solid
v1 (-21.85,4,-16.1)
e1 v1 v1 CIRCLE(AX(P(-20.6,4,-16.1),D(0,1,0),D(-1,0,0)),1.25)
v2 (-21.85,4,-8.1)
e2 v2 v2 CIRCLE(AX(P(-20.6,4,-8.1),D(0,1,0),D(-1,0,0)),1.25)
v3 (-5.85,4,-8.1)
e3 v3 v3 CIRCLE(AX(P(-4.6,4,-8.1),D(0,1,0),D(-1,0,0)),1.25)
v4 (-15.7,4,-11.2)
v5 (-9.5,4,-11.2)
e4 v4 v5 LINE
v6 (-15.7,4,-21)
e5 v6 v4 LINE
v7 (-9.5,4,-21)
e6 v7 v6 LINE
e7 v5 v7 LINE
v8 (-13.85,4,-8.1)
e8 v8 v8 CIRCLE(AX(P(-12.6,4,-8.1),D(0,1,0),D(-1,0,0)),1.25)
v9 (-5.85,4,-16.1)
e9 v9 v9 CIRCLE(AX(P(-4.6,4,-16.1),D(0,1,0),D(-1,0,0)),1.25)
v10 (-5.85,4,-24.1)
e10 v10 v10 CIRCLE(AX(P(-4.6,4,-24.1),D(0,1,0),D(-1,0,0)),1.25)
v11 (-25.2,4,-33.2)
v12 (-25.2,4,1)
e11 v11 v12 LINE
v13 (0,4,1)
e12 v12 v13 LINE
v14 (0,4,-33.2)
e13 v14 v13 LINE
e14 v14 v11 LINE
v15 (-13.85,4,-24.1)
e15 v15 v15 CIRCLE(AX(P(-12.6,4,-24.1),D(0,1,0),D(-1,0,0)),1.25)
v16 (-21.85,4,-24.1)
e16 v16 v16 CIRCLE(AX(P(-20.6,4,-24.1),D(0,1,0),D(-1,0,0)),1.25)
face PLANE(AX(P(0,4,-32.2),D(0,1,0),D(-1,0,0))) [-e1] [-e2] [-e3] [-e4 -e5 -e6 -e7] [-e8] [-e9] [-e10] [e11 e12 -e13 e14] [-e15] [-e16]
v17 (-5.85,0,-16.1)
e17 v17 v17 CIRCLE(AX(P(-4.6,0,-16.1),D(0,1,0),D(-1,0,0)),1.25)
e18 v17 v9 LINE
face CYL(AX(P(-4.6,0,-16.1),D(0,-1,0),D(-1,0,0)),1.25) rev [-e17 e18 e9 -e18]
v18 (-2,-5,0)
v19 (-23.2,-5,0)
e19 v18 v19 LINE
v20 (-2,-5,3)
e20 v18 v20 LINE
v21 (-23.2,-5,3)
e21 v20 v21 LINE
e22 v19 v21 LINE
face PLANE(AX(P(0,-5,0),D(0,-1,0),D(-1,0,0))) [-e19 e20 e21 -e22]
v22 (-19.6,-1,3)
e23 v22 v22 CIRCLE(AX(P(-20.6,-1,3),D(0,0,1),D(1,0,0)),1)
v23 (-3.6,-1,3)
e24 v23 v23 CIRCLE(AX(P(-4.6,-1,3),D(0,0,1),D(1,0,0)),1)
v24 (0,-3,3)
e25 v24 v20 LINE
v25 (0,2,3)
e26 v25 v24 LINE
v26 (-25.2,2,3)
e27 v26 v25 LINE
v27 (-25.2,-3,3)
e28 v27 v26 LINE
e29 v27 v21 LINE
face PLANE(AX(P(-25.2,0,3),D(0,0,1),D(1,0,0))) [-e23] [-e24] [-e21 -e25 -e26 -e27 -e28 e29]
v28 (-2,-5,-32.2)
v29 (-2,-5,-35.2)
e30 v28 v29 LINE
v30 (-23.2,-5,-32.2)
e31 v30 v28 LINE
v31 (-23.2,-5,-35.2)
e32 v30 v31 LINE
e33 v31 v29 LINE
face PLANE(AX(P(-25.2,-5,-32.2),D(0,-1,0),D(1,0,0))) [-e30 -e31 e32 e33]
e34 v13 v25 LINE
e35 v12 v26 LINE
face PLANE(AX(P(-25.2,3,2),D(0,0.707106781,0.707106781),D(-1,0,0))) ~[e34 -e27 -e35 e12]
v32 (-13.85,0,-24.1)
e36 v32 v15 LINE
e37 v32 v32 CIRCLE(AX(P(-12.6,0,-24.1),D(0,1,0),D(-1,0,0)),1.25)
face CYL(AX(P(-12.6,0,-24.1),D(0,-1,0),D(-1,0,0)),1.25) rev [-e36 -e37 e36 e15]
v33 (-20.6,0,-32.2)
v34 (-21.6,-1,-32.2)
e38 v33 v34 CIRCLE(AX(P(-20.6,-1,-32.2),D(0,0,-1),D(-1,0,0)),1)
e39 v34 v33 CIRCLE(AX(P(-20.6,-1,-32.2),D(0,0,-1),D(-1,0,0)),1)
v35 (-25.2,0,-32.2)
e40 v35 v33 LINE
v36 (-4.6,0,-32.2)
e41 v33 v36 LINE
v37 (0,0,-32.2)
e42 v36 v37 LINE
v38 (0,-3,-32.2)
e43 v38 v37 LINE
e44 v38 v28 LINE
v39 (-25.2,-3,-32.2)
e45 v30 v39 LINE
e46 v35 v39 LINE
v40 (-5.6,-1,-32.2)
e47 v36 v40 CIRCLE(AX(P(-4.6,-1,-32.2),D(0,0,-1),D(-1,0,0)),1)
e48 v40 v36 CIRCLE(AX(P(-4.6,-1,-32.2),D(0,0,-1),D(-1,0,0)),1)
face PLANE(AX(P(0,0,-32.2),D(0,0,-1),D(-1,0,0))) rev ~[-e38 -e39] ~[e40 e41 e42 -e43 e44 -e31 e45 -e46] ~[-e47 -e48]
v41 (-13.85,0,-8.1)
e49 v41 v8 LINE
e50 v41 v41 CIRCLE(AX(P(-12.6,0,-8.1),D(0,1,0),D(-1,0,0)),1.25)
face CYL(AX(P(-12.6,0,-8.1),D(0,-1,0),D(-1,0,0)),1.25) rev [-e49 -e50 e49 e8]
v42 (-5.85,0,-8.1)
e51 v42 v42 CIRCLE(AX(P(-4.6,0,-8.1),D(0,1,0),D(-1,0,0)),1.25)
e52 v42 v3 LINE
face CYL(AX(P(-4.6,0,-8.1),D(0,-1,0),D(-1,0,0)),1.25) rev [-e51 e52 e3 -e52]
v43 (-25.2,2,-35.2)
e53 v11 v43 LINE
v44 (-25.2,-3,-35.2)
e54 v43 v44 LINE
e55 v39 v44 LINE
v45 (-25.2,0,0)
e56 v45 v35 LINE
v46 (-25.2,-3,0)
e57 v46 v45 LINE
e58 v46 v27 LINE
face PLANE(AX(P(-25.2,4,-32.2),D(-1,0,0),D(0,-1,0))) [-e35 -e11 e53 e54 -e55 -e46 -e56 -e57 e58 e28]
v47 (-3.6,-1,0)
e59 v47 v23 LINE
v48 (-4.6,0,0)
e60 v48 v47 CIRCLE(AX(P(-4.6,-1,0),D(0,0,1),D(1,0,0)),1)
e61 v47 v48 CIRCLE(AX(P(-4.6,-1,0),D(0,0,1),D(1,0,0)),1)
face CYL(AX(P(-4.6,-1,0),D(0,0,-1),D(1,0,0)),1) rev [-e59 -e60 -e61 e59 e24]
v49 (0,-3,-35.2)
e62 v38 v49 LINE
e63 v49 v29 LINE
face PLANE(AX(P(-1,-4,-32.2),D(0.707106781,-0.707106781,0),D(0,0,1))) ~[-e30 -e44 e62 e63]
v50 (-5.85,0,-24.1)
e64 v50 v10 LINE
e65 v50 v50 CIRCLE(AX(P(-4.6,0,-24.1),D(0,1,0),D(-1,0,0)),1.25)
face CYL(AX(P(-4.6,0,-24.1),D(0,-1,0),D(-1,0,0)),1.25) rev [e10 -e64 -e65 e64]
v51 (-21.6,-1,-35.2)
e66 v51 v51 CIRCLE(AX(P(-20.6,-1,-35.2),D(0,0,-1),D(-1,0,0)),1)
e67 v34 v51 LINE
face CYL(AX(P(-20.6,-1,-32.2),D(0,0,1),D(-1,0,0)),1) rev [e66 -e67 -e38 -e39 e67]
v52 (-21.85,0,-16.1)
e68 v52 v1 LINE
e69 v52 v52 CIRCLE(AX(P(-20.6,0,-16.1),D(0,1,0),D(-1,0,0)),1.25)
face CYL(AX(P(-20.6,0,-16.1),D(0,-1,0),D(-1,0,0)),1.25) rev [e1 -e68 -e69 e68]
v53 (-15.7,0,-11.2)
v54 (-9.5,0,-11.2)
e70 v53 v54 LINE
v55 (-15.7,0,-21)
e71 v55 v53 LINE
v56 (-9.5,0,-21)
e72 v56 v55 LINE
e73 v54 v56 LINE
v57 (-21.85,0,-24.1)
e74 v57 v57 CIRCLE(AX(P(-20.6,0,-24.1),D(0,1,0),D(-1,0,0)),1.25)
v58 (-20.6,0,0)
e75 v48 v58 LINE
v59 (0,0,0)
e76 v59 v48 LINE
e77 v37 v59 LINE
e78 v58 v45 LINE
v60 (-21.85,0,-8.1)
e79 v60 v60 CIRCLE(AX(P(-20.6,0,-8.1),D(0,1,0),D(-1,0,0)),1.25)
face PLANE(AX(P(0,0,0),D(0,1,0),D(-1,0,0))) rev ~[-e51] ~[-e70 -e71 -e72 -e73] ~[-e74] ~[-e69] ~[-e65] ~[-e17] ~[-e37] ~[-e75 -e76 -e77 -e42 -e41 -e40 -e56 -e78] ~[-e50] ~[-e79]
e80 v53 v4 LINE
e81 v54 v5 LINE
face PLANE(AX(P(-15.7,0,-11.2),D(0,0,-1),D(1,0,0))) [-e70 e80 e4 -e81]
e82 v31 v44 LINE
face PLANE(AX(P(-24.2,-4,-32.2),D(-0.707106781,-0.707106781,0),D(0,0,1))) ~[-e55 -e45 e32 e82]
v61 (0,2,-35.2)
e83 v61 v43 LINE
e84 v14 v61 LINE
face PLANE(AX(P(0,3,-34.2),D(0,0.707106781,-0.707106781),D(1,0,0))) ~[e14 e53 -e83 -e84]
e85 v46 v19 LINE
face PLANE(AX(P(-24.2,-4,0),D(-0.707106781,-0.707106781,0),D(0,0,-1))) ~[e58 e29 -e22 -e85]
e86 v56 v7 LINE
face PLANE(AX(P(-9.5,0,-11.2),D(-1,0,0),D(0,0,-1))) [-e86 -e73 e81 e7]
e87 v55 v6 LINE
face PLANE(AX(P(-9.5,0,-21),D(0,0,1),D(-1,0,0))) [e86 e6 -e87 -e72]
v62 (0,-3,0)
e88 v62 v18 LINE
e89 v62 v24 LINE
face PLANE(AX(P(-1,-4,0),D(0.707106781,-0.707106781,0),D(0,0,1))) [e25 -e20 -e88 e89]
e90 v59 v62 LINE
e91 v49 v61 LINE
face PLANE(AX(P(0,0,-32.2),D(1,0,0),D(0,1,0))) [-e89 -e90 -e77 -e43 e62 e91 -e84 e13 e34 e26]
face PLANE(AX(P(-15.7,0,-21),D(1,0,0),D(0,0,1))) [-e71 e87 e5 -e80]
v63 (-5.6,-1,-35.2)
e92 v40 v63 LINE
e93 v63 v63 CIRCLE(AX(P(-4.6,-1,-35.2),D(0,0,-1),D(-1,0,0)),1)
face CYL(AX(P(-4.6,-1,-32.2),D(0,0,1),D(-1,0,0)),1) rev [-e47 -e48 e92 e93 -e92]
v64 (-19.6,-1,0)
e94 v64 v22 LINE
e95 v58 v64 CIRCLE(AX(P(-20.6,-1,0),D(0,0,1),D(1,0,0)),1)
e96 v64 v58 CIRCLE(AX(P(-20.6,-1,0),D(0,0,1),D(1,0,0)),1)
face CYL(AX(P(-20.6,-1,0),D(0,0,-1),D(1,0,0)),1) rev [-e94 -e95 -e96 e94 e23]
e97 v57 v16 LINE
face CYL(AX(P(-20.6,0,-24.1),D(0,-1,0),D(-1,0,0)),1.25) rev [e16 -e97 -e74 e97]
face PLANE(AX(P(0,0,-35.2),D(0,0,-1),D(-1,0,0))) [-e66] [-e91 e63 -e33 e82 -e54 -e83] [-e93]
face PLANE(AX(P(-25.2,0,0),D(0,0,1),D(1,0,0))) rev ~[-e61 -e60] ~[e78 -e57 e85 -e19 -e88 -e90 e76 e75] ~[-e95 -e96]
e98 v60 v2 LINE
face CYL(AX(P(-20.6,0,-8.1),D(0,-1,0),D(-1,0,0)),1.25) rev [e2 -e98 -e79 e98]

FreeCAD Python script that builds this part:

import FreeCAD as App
import Part
import Sketcher
from FreeCAD import Vector


def edges_at(feature, points):
    """Names of the edges that pass closest to the given points."""
    edges = feature.Shape.Edges
    near = lambda p: min(range(len(edges)), key=lambda i: edges[i].distToShape(Part.Vertex(*p))[0])
    return sorted({f"Edge{near(p) + 1}" for p in points})


def add_polygon(sketch, points):
    """Adds a closed chain of lines whose ends are joined by coincident constraints."""
    first, n = sketch.GeometryCount, len(points)
    for a, b in zip(points, points[1:] + points[:1]):
        sketch.addGeometry(Part.LineSegment(App.Vector(*a, 0), App.Vector(*b, 0)), False)
    for i in range(n):
        sketch.addConstraint(Sketcher.Constraint("Coincident", first + i, 2, first + (i + 1) % n, 1))

doc = App.newDocument("Part")
body = doc.addObject("PartDesign::Body", "Body")

# Sketch on XZ plane
sketch1 = doc.addObject("Sketcher::SketchObject", "Sketch")
body.addObject(sketch1)
sketch1.AttachmentSupport = (doc.XZ_Plane, [""])
sketch1.MapMode = "FlatFace"
add_polygon(sketch1, [(-25.2, 0), (0, 0), (0, -32.2), (-25.2, -32.2)])  # lines 0-3
sketch1.addGeometry(Part.Circle(Vector(-4.6, -24.1, 0), Vector(0, 0, 1), 1.2), False)  # 4
sketch1.addGeometry(Part.Circle(Vector(-12.6, -24.1, 0), Vector(0, 0, 1), 1.2), False)  # 5
sketch1.addGeometry(Part.Circle(Vector(-20.6, -24.1, 0), Vector(0, 0, 1), 1.2), False)  # 6
sketch1.addGeometry(Part.Circle(Vector(-4.6, -16.1, 0), Vector(0, 0, 1), 1.2), False)  # 7
sketch1.addGeometry(Part.Circle(Vector(-4.6, -8.1, 0), Vector(0, 0, 1), 1.2), False)  # 8
add_polygon(sketch1, [(-9.5, -11.2), (-15.7, -11.2), (-15.7, -21), (-9.5, -21)])  # lines 9-12
sketch1.addGeometry(Part.Circle(Vector(-12.6, -8.1, 0), Vector(0, 0, 1), 1.2), False)  # 13
sketch1.addGeometry(Part.Circle(Vector(-20.6, -16.1, 0), Vector(0, 0, 1), 1.2), False)  # 14
sketch1.addGeometry(Part.Circle(Vector(-20.6, -8.1, 0), Vector(0, 0, 1), 1.2), False)  # 15
sketch1.addConstraint([
    Sketcher.Constraint("Horizontal", 0),
    Sketcher.Constraint("Vertical", 1),
    Sketcher.Constraint("Horizontal", 2),
    Sketcher.Constraint("Vertical", 3),
    Sketcher.Constraint("Horizontal", 9),
    Sketcher.Constraint("Vertical", 10),
    Sketcher.Constraint("Horizontal", 11),
    Sketcher.Constraint("Vertical", 12),
    Sketcher.Constraint("Coincident", 0, 2, -1, 1),
    Sketcher.Constraint("Equal", 4, 5),
    Sketcher.Constraint("Equal", 5, 6),
    Sketcher.Constraint("Equal", 6, 7),
    Sketcher.Constraint("Equal", 7, 8),
    Sketcher.Constraint("Equal", 8, 13),
    Sketcher.Constraint("Equal", 13, 14),
    Sketcher.Constraint("Equal", 14, 15),
    Sketcher.Constraint("Horizontal", 4, 3, 5, 3),
    Sketcher.Constraint("Horizontal", 5, 3, 6, 3),
    Sketcher.Constraint("Horizontal", 8, 3, 13, 3),
    Sketcher.Constraint("Horizontal", 7, 3, 14, 3),
    Sketcher.Constraint("Horizontal", 13, 3, 15, 3),
    Sketcher.Constraint("Vertical", 4, 3, 7, 3),
    Sketcher.Constraint("Vertical", 7, 3, 8, 3),
    Sketcher.Constraint("Vertical", 5, 3, 13, 3),
    Sketcher.Constraint("Vertical", 6, 3, 14, 3),
    Sketcher.Constraint("Vertical", 14, 3, 15, 3),
    Sketcher.Constraint("Diameter", 4, 2.5),
    Sketcher.Constraint("DistanceX", 0, 1, 0, 2, 25.2),
    Sketcher.Constraint("DistanceY", 1, 2, 1, 1, 32.2),
    Sketcher.Constraint("DistanceX", 5, 3, 4, 3, 8.0),
    Sketcher.Constraint("DistanceX", 6, 3, 5, 3, 8.0),
    Sketcher.Constraint("DistanceY", 4, 3, 7, 3, 8.0),
    Sketcher.Constraint("DistanceY", 7, 3, 8, 3, 8.0),
    Sketcher.Constraint("DistanceX", 4, 3, -1, 1, 4.6),
    Sketcher.Constraint("DistanceY", 7, 3, -1, 1, 16.1),
    Sketcher.Constraint("DistanceY", 9, 2, -1, 1, 11.2),
    Sketcher.Constraint("DistanceX", 11, 2, -1, 1, 9.5),
    Sketcher.Constraint("DistanceX", 9, 2, 9, 1, 6.2),
    Sketcher.Constraint("DistanceY", 10, 2, 10, 1, 9.8),
])
pad1 = doc.addObject("PartDesign::Pad", "Pad")
body.addObject(pad1)
pad1.Profile = sketch1
pad1.Length = 4
pad1.Reversed = True

# Sketch on XY plane
sketch2 = doc.addObject("Sketcher::SketchObject", "Sketch001")
body.addObject(sketch2)
sketch2.AttachmentSupport = (doc.XY_Plane, [""])
sketch2.MapMode = "FlatFace"
add_polygon(sketch2, [(-25.2, 4), (-25.2, -5), (0, -5), (0, 4)])  # lines 0-3
sketch2.addGeometry(Part.Circle(Vector(-20.6, -1, 0), Vector(0, 0, 1), 1), False)  # 4
sketch2.addGeometry(Part.Circle(Vector(-4.6, -1, 0), Vector(0, 0, 1), 1), False)  # 5
sketch2.addConstraint([
    Sketcher.Constraint("Vertical", 0),
    Sketcher.Constraint("Horizontal", 1),
    Sketcher.Constraint("Vertical", 2),
    Sketcher.Constraint("Horizontal", 3),
    Sketcher.Constraint("Equal", 4, 5),
    Sketcher.Constraint("PointOnObject", 1, 2, -2),
    Sketcher.Constraint("Horizontal", 4, 3, 5, 3),
    Sketcher.Constraint("Diameter", 4, 2.0),
    Sketcher.Constraint("DistanceY", 0, 2, 0, 1, 9.0),
    Sketcher.Constraint("DistanceX", 1, 1, 1, 2, 25.2),
    Sketcher.Constraint("DistanceY", 0, 2, -1, 1, 5.0),
    Sketcher.Constraint("DistanceY", 5, 3, 2, 2, 5.0),
    Sketcher.Constraint("DistanceX", 5, 3, -1, 1, 4.6),
    Sketcher.Constraint("DistanceX", 0, 2, 4, 3, 4.6),
])
pad2 = doc.addObject("PartDesign::Pad", "Pad001")
body.addObject(pad2)
pad2.Profile = sketch2
pad2.Length = 3

# Sketch on XY plane
sketch3 = doc.addObject("Sketcher::SketchObject", "Sketch002")
body.addObject(sketch3)
sketch3.AttachmentSupport = (doc.XY_Plane, [""])
sketch3.MapMode = "FlatFace"
sketch3.AttachmentOffset = App.Placement(Vector(0, 0, -32.2), App.Rotation())
add_polygon(sketch3, [(0, 4), (0, -5), (-25.2, -5), (-25.2, 4)])  # lines 0-3
sketch3.addGeometry(Part.Circle(Vector(-4.6, -1, 0), Vector(0, 0, 1), 1), False)  # 4
sketch3.addGeometry(Part.Circle(Vector(-20.6, -1, 0), Vector(0, 0, 1), 1), False)  # 5
sketch3.addConstraint([
    Sketcher.Constraint("Vertical", 0),
    Sketcher.Constraint("Horizontal", 1),
    Sketcher.Constraint("Vertical", 2),
    Sketcher.Constraint("Horizontal", 3),
    Sketcher.Constraint("Equal", 4, 5),
    Sketcher.Constraint("PointOnObject", 0, 2, -2),
    Sketcher.Constraint("Horizontal", 4, 3, 5, 3),
    Sketcher.Constraint("Diameter", 4, 2.0),
    Sketcher.Constraint("DistanceY", 0, 2, 0, 1, 9.0),
    Sketcher.Constraint("DistanceX", 1, 2, 1, 1, 25.2),
    Sketcher.Constraint("DistanceY", 0, 2, -1, 1, 5.0),
    Sketcher.Constraint("DistanceY", 5, 3, 2, 2, 5.0),
    Sketcher.Constraint("DistanceX", 4, 3, -1, 1, 4.6),
    Sketcher.Constraint("DistanceX", 1, 2, 5, 3, 4.6),
])
pad3 = doc.addObject("PartDesign::Pad", "Pad002")
body.addObject(pad3)
pad3.Profile = sketch3
pad3.Length = 3
pad3.Reversed = True
doc.recompute()

chamfer = doc.addObject("PartDesign::Chamfer", "Chamfer")
body.addObject(chamfer)
chamfer.Base = (pad3, edges_at(pad3, [
    (-12.6, 4, -35.2),
    (-12.6, 4, 3),
    (0, -5, 1.5),
    (-25.2, -5, 1.5),
    (-25.2, -5, -33.7),
    (0, -5, -33.7),
]))
chamfer.Size = 2

doc.recompute()
